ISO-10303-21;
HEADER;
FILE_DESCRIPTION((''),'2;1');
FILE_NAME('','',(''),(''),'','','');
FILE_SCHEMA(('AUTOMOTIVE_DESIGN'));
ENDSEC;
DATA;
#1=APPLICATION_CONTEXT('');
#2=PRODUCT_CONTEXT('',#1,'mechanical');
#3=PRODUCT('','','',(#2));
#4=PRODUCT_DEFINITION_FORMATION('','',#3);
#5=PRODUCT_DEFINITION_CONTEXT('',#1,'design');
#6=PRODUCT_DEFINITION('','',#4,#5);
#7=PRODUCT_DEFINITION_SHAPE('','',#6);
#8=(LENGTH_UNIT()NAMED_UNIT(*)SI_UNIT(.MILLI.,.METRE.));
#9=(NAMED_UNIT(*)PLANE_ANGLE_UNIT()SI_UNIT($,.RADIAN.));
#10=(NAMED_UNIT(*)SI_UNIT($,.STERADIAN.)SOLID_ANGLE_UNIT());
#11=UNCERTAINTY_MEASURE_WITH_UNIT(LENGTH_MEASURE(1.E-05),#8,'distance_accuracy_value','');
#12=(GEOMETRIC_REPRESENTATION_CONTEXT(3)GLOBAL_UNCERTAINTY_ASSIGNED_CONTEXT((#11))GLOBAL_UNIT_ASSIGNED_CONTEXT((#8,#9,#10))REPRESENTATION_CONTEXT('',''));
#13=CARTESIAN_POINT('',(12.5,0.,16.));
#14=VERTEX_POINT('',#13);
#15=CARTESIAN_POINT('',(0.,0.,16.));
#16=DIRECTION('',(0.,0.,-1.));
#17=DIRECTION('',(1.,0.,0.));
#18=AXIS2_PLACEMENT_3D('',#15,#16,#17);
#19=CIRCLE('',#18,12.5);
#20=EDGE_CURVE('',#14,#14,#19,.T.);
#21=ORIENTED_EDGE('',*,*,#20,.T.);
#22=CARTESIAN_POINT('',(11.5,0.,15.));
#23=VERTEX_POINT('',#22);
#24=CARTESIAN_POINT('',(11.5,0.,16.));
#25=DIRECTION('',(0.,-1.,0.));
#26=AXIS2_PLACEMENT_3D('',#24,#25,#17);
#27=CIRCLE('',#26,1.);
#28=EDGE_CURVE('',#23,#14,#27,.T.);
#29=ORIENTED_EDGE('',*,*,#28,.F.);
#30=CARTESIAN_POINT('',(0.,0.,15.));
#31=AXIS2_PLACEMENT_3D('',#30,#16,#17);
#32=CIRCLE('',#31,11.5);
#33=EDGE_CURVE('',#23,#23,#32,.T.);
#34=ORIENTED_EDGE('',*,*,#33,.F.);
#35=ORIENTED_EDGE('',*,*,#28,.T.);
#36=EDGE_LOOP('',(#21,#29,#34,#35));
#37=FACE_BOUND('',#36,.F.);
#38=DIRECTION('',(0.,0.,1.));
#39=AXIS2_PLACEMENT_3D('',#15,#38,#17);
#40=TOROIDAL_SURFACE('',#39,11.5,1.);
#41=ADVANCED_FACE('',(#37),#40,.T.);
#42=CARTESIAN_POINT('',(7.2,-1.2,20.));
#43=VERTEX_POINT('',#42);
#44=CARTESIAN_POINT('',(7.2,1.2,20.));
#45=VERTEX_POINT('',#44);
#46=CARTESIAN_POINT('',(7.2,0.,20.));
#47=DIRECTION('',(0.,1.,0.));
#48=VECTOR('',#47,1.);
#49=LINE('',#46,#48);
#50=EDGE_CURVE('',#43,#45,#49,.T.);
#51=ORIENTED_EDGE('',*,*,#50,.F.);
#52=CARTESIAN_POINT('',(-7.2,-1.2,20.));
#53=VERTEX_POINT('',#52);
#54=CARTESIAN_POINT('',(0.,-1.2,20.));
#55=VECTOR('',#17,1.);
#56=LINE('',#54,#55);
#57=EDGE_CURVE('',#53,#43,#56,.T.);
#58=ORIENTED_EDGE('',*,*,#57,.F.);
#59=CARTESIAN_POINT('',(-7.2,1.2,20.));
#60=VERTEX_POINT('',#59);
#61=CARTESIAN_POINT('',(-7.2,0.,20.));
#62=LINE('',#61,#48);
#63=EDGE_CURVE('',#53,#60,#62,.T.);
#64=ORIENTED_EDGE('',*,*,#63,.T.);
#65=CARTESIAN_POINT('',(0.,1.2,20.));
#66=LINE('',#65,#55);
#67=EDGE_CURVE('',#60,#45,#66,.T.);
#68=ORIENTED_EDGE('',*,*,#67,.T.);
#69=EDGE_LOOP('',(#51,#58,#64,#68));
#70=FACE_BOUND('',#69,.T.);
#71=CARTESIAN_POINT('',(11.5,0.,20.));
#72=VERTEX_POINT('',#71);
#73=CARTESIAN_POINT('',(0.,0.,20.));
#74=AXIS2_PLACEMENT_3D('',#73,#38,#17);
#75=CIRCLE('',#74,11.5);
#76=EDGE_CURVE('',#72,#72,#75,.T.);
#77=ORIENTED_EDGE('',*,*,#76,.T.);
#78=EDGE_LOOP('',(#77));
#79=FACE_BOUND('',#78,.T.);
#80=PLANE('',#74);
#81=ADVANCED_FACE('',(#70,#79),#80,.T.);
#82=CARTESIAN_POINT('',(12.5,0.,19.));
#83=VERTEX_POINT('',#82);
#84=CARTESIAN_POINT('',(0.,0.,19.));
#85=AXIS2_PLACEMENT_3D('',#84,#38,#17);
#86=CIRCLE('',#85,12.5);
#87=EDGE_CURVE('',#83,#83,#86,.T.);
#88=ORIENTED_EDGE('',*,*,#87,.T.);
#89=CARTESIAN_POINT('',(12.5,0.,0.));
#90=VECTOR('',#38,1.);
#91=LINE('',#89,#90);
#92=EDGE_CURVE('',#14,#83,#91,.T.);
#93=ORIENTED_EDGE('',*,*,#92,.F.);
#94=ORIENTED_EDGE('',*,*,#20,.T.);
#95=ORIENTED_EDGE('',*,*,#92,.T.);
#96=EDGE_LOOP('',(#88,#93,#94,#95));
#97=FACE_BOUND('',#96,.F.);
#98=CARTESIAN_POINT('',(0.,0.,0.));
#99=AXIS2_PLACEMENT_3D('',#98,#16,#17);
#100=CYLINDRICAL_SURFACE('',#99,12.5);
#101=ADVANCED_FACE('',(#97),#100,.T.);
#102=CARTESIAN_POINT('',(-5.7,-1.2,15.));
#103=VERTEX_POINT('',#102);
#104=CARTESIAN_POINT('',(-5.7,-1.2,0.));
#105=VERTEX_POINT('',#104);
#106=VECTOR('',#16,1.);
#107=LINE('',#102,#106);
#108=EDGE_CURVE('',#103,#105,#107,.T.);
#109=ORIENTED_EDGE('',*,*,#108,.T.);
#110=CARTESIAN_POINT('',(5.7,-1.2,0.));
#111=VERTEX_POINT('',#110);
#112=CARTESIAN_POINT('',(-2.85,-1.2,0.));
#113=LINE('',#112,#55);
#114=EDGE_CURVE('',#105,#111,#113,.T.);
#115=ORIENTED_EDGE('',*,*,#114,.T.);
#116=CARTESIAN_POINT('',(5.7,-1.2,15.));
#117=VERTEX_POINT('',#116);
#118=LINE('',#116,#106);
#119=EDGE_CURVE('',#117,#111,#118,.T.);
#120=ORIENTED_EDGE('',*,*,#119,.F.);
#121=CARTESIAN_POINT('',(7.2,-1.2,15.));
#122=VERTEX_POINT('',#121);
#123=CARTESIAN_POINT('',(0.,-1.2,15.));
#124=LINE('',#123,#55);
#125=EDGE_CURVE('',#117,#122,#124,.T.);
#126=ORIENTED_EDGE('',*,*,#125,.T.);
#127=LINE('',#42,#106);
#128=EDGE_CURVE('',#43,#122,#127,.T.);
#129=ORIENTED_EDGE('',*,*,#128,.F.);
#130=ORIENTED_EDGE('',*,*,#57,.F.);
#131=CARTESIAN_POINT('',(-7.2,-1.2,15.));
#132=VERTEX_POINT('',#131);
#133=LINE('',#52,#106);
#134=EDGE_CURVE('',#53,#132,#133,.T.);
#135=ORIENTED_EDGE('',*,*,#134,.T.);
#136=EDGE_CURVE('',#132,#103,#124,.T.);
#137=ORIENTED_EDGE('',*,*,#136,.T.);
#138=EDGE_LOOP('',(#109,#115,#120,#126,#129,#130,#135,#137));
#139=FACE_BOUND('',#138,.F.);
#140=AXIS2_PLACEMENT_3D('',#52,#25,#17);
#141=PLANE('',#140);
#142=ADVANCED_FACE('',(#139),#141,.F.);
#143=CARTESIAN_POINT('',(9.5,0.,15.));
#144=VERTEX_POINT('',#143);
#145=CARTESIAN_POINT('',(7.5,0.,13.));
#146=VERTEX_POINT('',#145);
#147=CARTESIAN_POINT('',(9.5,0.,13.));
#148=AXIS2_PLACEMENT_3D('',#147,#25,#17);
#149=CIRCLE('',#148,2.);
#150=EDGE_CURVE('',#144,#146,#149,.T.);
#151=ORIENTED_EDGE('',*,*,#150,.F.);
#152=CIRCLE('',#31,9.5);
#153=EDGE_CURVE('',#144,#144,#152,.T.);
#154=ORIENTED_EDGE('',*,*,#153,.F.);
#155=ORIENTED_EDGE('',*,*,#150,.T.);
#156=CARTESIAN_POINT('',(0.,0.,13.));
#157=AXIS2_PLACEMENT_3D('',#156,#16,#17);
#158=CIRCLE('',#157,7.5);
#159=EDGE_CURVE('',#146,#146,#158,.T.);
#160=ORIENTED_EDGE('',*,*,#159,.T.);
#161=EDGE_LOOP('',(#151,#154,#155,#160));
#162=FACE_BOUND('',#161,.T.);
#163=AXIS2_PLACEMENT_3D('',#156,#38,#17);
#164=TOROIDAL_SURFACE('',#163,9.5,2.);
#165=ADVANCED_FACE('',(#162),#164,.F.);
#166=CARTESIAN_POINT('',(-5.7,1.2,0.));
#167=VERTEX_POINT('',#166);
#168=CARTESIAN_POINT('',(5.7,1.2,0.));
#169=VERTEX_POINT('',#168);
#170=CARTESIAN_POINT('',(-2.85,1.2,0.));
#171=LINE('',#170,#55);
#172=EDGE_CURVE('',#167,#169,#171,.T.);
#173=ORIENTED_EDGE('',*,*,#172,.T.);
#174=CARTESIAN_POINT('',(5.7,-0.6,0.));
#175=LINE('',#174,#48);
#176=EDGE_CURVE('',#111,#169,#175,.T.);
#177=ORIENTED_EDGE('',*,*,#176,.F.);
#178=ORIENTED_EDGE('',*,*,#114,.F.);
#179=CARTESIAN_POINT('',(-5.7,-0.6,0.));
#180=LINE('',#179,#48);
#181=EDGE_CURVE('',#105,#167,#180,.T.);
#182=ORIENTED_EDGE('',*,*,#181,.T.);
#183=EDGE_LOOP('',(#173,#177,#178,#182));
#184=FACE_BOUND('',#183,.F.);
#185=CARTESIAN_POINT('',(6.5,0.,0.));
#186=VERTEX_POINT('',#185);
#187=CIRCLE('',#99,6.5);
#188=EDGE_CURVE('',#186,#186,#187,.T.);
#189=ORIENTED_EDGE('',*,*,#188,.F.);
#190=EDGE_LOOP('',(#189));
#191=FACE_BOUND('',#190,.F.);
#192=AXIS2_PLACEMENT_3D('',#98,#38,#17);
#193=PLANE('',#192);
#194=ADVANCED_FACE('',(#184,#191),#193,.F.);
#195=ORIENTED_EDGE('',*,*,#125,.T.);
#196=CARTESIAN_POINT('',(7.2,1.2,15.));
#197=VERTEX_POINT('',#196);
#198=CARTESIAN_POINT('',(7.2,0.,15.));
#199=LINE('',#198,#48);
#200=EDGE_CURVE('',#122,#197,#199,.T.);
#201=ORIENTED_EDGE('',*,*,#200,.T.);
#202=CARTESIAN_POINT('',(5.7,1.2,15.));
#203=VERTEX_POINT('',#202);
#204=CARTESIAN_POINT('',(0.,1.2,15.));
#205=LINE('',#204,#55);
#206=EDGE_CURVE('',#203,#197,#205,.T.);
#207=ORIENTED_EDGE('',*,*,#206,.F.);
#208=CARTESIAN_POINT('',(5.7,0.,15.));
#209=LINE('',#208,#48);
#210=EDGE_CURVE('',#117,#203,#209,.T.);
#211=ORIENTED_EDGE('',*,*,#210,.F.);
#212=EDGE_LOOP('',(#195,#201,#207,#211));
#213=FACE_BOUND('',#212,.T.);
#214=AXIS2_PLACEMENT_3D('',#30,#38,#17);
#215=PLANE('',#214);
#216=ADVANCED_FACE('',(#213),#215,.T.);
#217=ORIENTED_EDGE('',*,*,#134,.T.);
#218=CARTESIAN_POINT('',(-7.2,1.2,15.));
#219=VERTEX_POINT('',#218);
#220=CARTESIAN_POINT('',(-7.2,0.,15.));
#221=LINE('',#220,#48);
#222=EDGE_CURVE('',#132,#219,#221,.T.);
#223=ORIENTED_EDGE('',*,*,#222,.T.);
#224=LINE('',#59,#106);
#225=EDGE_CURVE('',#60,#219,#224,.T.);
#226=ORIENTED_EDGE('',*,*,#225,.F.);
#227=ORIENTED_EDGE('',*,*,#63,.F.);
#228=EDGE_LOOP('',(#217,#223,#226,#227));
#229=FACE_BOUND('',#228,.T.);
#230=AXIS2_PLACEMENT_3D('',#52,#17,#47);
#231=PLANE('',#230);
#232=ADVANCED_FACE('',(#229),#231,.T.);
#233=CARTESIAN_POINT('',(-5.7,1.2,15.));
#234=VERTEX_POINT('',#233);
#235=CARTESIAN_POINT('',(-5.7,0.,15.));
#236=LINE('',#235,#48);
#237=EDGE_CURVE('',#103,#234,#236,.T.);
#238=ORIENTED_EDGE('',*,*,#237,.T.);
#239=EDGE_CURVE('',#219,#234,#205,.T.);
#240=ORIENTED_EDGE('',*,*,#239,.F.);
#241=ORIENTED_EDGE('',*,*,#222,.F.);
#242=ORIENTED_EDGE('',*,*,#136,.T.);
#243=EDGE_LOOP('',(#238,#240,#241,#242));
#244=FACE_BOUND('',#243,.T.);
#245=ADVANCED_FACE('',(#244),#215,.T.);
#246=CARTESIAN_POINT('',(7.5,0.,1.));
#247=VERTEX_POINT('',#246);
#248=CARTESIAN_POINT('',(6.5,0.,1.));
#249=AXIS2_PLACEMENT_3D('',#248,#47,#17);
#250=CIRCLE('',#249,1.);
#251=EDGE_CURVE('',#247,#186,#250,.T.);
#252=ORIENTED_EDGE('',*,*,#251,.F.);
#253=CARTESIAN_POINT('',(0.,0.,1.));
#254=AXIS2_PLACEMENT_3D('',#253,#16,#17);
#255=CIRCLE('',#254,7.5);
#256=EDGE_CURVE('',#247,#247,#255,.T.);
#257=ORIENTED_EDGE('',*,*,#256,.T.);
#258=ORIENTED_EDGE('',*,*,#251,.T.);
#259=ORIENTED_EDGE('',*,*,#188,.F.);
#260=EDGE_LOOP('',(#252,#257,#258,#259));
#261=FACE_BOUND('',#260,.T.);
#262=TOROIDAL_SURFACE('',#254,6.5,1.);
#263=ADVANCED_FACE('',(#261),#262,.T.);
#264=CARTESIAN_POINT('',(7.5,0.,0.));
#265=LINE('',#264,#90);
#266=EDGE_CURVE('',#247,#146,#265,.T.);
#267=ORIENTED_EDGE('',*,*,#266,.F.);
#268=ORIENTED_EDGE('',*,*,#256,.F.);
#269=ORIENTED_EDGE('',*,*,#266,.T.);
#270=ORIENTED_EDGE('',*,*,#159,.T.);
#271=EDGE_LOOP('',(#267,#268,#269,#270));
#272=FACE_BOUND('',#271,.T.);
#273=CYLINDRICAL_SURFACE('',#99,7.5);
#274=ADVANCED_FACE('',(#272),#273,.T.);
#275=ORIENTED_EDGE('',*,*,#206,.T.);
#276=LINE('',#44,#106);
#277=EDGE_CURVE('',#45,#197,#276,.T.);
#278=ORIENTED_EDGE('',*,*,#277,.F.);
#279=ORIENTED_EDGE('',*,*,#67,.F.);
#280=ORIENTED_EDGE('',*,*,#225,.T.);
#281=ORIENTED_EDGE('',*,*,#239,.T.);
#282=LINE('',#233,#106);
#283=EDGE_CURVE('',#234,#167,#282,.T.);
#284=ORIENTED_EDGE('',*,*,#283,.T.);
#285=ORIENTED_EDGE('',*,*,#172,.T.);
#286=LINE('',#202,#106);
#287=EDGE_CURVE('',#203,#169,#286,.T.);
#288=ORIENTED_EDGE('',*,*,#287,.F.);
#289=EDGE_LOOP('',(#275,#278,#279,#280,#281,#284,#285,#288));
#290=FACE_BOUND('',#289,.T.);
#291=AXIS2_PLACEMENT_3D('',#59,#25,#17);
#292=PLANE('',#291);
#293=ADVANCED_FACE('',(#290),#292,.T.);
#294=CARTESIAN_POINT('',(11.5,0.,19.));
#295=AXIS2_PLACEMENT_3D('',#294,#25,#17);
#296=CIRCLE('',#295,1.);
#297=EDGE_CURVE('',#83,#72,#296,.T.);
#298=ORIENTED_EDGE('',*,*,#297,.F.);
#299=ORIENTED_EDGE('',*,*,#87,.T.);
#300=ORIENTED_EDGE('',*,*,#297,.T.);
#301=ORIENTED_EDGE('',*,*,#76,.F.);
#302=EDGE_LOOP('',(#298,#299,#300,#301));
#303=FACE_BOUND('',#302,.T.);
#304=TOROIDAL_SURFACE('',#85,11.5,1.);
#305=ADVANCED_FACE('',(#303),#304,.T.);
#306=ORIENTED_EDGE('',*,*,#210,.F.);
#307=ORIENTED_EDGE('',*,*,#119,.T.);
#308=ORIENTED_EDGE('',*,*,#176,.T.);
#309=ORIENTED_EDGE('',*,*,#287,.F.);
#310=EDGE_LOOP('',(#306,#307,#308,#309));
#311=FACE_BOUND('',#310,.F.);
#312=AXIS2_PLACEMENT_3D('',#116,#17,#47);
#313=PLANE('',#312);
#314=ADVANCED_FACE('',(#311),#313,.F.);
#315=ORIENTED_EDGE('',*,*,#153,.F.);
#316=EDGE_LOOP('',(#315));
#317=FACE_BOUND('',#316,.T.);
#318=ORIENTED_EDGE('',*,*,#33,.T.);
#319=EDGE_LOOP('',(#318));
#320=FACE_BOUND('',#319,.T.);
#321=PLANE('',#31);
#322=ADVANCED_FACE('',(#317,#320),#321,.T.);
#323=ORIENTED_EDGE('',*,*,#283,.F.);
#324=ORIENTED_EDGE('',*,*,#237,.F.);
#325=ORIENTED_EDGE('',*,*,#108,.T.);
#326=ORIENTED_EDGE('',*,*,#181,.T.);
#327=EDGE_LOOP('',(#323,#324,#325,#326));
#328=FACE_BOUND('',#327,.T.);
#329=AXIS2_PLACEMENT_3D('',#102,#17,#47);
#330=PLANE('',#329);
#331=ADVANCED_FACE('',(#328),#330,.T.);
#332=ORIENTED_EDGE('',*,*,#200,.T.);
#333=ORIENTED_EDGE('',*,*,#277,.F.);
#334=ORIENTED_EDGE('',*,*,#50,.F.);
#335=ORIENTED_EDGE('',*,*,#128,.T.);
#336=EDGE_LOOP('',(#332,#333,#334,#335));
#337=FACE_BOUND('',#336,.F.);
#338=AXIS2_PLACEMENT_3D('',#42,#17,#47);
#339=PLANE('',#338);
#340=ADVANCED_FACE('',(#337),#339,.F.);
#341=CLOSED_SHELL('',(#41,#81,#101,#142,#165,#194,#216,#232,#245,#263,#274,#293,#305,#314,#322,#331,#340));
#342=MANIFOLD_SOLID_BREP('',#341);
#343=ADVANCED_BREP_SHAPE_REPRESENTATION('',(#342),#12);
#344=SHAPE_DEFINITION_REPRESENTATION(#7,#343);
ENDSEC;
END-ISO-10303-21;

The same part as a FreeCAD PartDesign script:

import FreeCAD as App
import Part
import Sketcher

V = App.Vector


def edges_at(feature, points):
    """Names of the edges that pass closest to the given points."""
    edges = feature.Shape.Edges
    near = lambda p: min(range(len(edges)), key=lambda i: edges[i].distToShape(Part.Vertex(*p))[0])
    return sorted({f"Edge{near(p) + 1}" for p in points})


def add_polygon(sketch, points):
    """Adds a closed chain of lines whose ends are joined by coincident constraints."""
    first, n = sketch.GeometryCount, len(points)
    for a, b in zip(points, points[1:] + points[:1]):
        sketch.addGeometry(Part.LineSegment(App.Vector(*a, 0), App.Vector(*b, 0)), False)
    for i in range(n):
        sketch.addConstraint(Sketcher.Constraint("Coincident", first + i, 2, first + (i + 1) % n, 1))

doc = App.newDocument("Part")
body = doc.addObject("PartDesign::Body", "Body")

# Sketch on XY plane
sketch1 = body.newObject("Sketcher::SketchObject", "Sketch")
sketch1.AttachmentSupport = (doc.getObject("XY_Plane"), [""])
sketch1.MapMode = "FlatFace"
sketch1.addGeometry(Part.Circle(V(0, 0, 0), V(0, 0, 1), 12.5), False)
sketch1.addConstraint([
    Sketcher.Constraint("Coincident", 0, 3, -1, 1),
    Sketcher.Constraint("Diameter", 0, 25.0),
])
pad1 = body.newObject("PartDesign::Pad", "Pad")
pad1.Profile = sketch1
pad1.Length = 20

# Sketch on XY plane
sketch2 = body.newObject("Sketcher::SketchObject", "Sketch001")
sketch2.AttachmentSupport = (doc.getObject("XY_Plane"), [""])
sketch2.MapMode = "FlatFace"
sketch2.AttachmentOffset = App.Placement(V(0, 0, 20), App.Rotation())
add_polygon(sketch2, [(-7.2, 1.2), (-7.2, -1.2), (7.2, -1.2), (7.2, 1.2)])  # lines 0-3
sketch2.addConstraint([
    Sketcher.Constraint("Vertical", 0),
    Sketcher.Constraint("Horizontal", 1),
    Sketcher.Constraint("Vertical", 2),
    Sketcher.Constraint("Horizontal", 3),
    Sketcher.Constraint("Symmetric", 0, 2, 2, 2, -1, 1),
    Sketcher.Constraint("DistanceX", 1, 1, 1, 2, 14.4),
    Sketcher.Constraint("DistanceY", 0, 2, 0, 1, 2.4),
])
pocket1 = body.newObject("PartDesign::Pocket", "Pocket")
pocket1.Profile = sketch2
pocket1.Length = 5

# Sketch on XY plane
sketch3 = body.newObject("Sketcher::SketchObject", "Sketch002")
sketch3.AttachmentSupport = (doc.getObject("XY_Plane"), [""])
sketch3.MapMode = "FlatFace"
sketch3.addGeometry([
    Part.Circle(V(0, 0, 0), V(0, 0, 1), 12.5),
    Part.Circle(V(0, 0, 0), V(0, 0, 1), 7.5),
], False)
sketch3.addConstraint([
    Sketcher.Constraint("Coincident", 0, 3, -1, 1),
    Sketcher.Constraint("Coincident", 1, 3, -1, 1),
    Sketcher.Constraint("Diameter", 0, 25.0),
    Sketcher.Constraint("Diameter", 1, 15.0),
])
pocket2 = body.newObject("PartDesign::Pocket", "Pocket001")
pocket2.Profile = sketch3
pocket2.Length = 15
pocket2.Reversed = True

# Sketch on XY plane
sketch4 = body.newObject("Sketcher::SketchObject", "Sketch003")
sketch4.AttachmentSupport = (doc.getObject("XY_Plane"), [""])
sketch4.MapMode = "FlatFace"
sketch4.AttachmentOffset = App.Placement(V(0, 0, 15), App.Rotation())
add_polygon(sketch4, [(-5.7, 1.2), (-5.7, -1.2), (5.7, -1.2), (5.7, 1.2)])  # lines 0-3
sketch4.addConstraint([
    Sketcher.Constraint("Vertical", 0),
    Sketcher.Constraint("Horizontal", 1),
    Sketcher.Constraint("Vertical", 2),
    Sketcher.Constraint("Horizontal", 3),
    Sketcher.Constraint("Symmetric", 0, 2, 2, 2, -1, 1),
    Sketcher.Constraint("DistanceX", 1, 1, 1, 2, 11.4),
    Sketcher.Constraint("DistanceY", 0, 2, 0, 1, 2.4),
])
pocket3 = body.newObject("PartDesign::Pocket", "Pocket002")
pocket3.Profile = sketch4
pocket3.Type = "ThroughAll"
doc.recompute()

fillet = body.newObject("PartDesign::Fillet", "Fillet")
fillet.Base = (pocket3, edges_at(pocket3, [(-7.5, 0, 15)]))
fillet.Radius = 2
doc.recompute()

fillet2 = body.newObject("PartDesign::Fillet", "Fillet001")
fillet2.Base = (fillet, edges_at(fillet, [(-12.5, 0, 20), (-12.5, 0, 15), (-7.5, 0, 0)]))
fillet2.Radius = 1

doc.recompute()
